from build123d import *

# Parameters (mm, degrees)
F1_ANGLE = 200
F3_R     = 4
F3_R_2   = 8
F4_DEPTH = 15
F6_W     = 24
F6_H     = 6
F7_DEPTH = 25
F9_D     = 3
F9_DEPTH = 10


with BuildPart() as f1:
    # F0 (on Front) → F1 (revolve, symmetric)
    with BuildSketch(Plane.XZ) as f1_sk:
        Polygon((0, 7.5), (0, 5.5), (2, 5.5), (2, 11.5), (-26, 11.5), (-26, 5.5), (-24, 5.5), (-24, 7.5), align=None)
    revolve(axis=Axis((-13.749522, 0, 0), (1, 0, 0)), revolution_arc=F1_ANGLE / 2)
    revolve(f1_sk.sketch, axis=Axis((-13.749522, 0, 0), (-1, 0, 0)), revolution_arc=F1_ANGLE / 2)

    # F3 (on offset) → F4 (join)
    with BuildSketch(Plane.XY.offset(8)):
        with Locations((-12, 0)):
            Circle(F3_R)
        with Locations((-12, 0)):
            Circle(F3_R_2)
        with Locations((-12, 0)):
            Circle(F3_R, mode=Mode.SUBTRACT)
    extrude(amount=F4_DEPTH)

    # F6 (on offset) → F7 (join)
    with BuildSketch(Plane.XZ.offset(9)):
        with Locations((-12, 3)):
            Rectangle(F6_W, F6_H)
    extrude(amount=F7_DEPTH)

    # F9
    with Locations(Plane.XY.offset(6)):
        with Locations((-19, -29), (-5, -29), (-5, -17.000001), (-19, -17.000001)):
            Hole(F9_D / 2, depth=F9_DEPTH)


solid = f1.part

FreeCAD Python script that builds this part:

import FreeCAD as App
import Part
import Sketcher

V = App.Vector
Q = App.Units.Quantity


def add_polygon(sketch, points):
    """Adds a closed chain of lines whose ends are joined by coincident constraints."""
    first, n = sketch.GeometryCount, len(points)
    for a, b in zip(points, points[1:] + points[:1]):
        sketch.addGeometry(Part.LineSegment(App.Vector(*a, 0), App.Vector(*b, 0)), False)
    for i in range(n):
        sketch.addConstraint(Sketcher.Constraint("Coincident", first + i, 2, first + (i + 1) % n, 1))

doc = App.newDocument("Part")
body = doc.addObject("PartDesign::Body", "Body")

# Sketch on XZ plane
sketch1 = doc.addObject("Sketcher::SketchObject", "Sketch")
body.addObject(sketch1)
sketch1.AttachmentSupport = (doc.XZ_Plane, [""])
sketch1.MapMode = "FlatFace"
add_polygon(sketch1, [(0, 7.5), (0, 5.5), (2, 5.5), (2, 11.5), (-26, 11.5), (-26, 5.5), (-24, 5.5), (-24, 7.5)])  # lines 0-7
sketch1.addConstraint([
    Sketcher.Constraint("Vertical", 0),
    Sketcher.Constraint("Horizontal", 1),
    Sketcher.Constraint("Vertical", 2),
    Sketcher.Constraint("Horizontal", 3),
    Sketcher.Constraint("Vertical", 4),
    Sketcher.Constraint("Horizontal", 5),
    Sketcher.Constraint("Vertical", 6),
    Sketcher.Constraint("Horizontal", 7),
    Sketcher.Constraint("PointOnObject", 0, 2, -2),
    Sketcher.Constraint("Horizontal", 1, 2, 4, 2),
    Sketcher.Constraint("Equal", 1, 5),
    Sketcher.Constraint("Equal", 5, 0),
    Sketcher.Constraint("DistanceX", 1, 1, 1, 2, Q("2 mm")),
    Sketcher.Constraint("DistanceX", 3, 2, 3, 1, Q("28 mm")),
    Sketcher.Constraint("DistanceY", 2, 1, 2, 2, Q("6 mm")),
    Sketcher.Constraint("DistanceY", -1, 1, 0, 2, Q("5.5 mm")),
])
revolution = doc.addObject("PartDesign::Revolution", "Revolution")
body.addObject(revolution)
revolution.Profile = sketch1
revolution.ReferenceAxis = (sketch1, ["H_Axis"])
revolution.Angle = 100

# Sketch on XZ plane
sketch2 = doc.addObject("Sketcher::SketchObject", "Sketch001")
body.addObject(sketch2)
sketch2.AttachmentSupport = (doc.XZ_Plane, [""])
sketch2.MapMode = "FlatFace"
add_polygon(sketch2, [(0, 7.5), (0, 5.5), (2, 5.5), (2, 11.5), (-26, 11.5), (-26, 5.5), (-24, 5.5), (-24, 7.5)])  # lines 0-7
sketch2.addConstraint([
    Sketcher.Constraint("Vertical", 0),
    Sketcher.Constraint("Horizontal", 1),
    Sketcher.Constraint("Vertical", 2),
    Sketcher.Constraint("Horizontal", 3),
    Sketcher.Constraint("Vertical", 4),
    Sketcher.Constraint("Horizontal", 5),
    Sketcher.Constraint("Vertical", 6),
    Sketcher.Constraint("Horizontal", 7),
    Sketcher.Constraint("PointOnObject", 0, 2, -2),
    Sketcher.Constraint("Horizontal", 1, 2, 4, 2),
    Sketcher.Constraint("Equal", 1, 5),
    Sketcher.Constraint("Equal", 5, 0),
    Sketcher.Constraint("DistanceX", 1, 1, 1, 2, Q("2 mm")),
    Sketcher.Constraint("DistanceX", 3, 2, 3, 1, Q("28 mm")),
    Sketcher.Constraint("DistanceY", 2, 1, 2, 2, Q("6 mm")),
    Sketcher.Constraint("DistanceY", -1, 1, 0, 2, Q("5.5 mm")),
])
revolution2 = doc.addObject("PartDesign::Revolution", "Revolution001")
body.addObject(revolution2)
revolution2.Profile = sketch2
revolution2.ReferenceAxis = (sketch2, ["H_Axis"])
revolution2.Angle = 100
revolution2.Reversed = True

# Sketch on XY plane
sketch3 = doc.addObject("Sketcher::SketchObject", "Sketch002")
body.addObject(sketch3)
sketch3.AttachmentSupport = (doc.XY_Plane, [""])
sketch3.MapMode = "FlatFace"
sketch3.AttachmentOffset = App.Placement(V(0, 0, 8), App.Rotation())
sketch3.addGeometry([
    Part.Circle(V(-12, 0, 0), V(0, 0, 1), 8),
    Part.Circle(V(-12, 0, 0), V(0, 0, 1), 4),
], False)
sketch3.addConstraint([
    Sketcher.Constraint("Coincident", 1, 3, 0, 3),
    Sketcher.Constraint("PointOnObject", 0, 3, -1),
    Sketcher.Constraint("Diameter", 0, Q("16 mm")),
    Sketcher.Constraint("Diameter", 1, Q("8 mm")),
    Sketcher.Constraint("DistanceX", 0, 3, -1, 1, Q("12 mm")),
])
pad1 = doc.addObject("PartDesign::Pad", "Pad")
body.addObject(pad1)
pad1.Profile = sketch3
pad1.Length = 15

# Sketch on XZ plane
sketch4 = doc.addObject("Sketcher::SketchObject", "Sketch003")
body.addObject(sketch4)
sketch4.AttachmentSupport = (doc.XZ_Plane, [""])
sketch4.MapMode = "FlatFace"
sketch4.AttachmentOffset = App.Placement(V(0, 0, 9), App.Rotation())
add_polygon(sketch4, [(-24, 6), (-24, 0), (0, 0), (0, 6)])  # lines 0-3
sketch4.addConstraint([
    Sketcher.Constraint("Vertical", 0),
    Sketcher.Constraint("Horizontal", 1),
    Sketcher.Constraint("Vertical", 2),
    Sketcher.Constraint("Horizontal", 3),
    Sketcher.Constraint("Coincident", 1, 2, -1, 1),
    Sketcher.Constraint("DistanceX", 1, 1, 1, 2, Q("24 mm")),
    Sketcher.Constraint("DistanceY", 0, 2, 0, 1, Q("6 mm")),
])
pad2 = doc.addObject("PartDesign::Pad", "Pad001")
body.addObject(pad2)
pad2.Profile = sketch4
pad2.Length = 25

# Sketch on XY plane
sketch5 = doc.addObject("Sketcher::SketchObject", "Sketch004")
body.addObject(sketch5)
sketch5.AttachmentSupport = (doc.XY_Plane, [""])
sketch5.MapMode = "FlatFace"
sketch5.AttachmentOffset = App.Placement(V(0, 0, 6), App.Rotation())
sketch5.addGeometry([
    Part.Circle(V(-19, -29, 0), V(0, 0, 1), 1.5),
    Part.Circle(V(-5, -29, 0), V(0, 0, 1), 1.5),
    Part.Circle(V(-5, -17.000001, 0), V(0, 0, 1), 1.5),
    Part.Circle(V(-19, -17.000001, 0), V(0, 0, 1), 1.5),
], False)
sketch5.addConstraint([
    Sketcher.Constraint("Equal", 0, 1),
    Sketcher.Constraint("Equal", 1, 2),
    Sketcher.Constraint("Equal", 2, 3),
    Sketcher.Constraint("Horizontal", 0, 3, 1, 3),
    Sketcher.Constraint("Horizontal", 2, 3, 3, 3),
    Sketcher.Constraint("Vertical", 1, 3, 2, 3),
    Sketcher.Constraint("Vertical", 0, 3, 3, 3),
    Sketcher.Constraint("Diameter", 0, Q("3 mm")),
    Sketcher.Constraint("DistanceX", 0, 3, -1, 1, Q("19 mm")),
    Sketcher.Constraint("DistanceY", 0, 3, -1, 1, Q("29 mm")),
    Sketcher.Constraint("DistanceX", 1, 3, -1, 1, Q("5 mm")),
    Sketcher.Constraint("DistanceY", 2, 3, -1, 1, Q("17.000001 mm")),
])
doc.recompute()
hole = doc.addObject("PartDesign::Hole", "Hole")
body.addObject(hole)
hole.Profile = sketch5
hole.ThreadType = "None"
hole.Diameter = 3
hole.DepthType = "Dimension"
hole.Depth = 10
hole.DrillPoint = "Flat"

doc.recompute()
